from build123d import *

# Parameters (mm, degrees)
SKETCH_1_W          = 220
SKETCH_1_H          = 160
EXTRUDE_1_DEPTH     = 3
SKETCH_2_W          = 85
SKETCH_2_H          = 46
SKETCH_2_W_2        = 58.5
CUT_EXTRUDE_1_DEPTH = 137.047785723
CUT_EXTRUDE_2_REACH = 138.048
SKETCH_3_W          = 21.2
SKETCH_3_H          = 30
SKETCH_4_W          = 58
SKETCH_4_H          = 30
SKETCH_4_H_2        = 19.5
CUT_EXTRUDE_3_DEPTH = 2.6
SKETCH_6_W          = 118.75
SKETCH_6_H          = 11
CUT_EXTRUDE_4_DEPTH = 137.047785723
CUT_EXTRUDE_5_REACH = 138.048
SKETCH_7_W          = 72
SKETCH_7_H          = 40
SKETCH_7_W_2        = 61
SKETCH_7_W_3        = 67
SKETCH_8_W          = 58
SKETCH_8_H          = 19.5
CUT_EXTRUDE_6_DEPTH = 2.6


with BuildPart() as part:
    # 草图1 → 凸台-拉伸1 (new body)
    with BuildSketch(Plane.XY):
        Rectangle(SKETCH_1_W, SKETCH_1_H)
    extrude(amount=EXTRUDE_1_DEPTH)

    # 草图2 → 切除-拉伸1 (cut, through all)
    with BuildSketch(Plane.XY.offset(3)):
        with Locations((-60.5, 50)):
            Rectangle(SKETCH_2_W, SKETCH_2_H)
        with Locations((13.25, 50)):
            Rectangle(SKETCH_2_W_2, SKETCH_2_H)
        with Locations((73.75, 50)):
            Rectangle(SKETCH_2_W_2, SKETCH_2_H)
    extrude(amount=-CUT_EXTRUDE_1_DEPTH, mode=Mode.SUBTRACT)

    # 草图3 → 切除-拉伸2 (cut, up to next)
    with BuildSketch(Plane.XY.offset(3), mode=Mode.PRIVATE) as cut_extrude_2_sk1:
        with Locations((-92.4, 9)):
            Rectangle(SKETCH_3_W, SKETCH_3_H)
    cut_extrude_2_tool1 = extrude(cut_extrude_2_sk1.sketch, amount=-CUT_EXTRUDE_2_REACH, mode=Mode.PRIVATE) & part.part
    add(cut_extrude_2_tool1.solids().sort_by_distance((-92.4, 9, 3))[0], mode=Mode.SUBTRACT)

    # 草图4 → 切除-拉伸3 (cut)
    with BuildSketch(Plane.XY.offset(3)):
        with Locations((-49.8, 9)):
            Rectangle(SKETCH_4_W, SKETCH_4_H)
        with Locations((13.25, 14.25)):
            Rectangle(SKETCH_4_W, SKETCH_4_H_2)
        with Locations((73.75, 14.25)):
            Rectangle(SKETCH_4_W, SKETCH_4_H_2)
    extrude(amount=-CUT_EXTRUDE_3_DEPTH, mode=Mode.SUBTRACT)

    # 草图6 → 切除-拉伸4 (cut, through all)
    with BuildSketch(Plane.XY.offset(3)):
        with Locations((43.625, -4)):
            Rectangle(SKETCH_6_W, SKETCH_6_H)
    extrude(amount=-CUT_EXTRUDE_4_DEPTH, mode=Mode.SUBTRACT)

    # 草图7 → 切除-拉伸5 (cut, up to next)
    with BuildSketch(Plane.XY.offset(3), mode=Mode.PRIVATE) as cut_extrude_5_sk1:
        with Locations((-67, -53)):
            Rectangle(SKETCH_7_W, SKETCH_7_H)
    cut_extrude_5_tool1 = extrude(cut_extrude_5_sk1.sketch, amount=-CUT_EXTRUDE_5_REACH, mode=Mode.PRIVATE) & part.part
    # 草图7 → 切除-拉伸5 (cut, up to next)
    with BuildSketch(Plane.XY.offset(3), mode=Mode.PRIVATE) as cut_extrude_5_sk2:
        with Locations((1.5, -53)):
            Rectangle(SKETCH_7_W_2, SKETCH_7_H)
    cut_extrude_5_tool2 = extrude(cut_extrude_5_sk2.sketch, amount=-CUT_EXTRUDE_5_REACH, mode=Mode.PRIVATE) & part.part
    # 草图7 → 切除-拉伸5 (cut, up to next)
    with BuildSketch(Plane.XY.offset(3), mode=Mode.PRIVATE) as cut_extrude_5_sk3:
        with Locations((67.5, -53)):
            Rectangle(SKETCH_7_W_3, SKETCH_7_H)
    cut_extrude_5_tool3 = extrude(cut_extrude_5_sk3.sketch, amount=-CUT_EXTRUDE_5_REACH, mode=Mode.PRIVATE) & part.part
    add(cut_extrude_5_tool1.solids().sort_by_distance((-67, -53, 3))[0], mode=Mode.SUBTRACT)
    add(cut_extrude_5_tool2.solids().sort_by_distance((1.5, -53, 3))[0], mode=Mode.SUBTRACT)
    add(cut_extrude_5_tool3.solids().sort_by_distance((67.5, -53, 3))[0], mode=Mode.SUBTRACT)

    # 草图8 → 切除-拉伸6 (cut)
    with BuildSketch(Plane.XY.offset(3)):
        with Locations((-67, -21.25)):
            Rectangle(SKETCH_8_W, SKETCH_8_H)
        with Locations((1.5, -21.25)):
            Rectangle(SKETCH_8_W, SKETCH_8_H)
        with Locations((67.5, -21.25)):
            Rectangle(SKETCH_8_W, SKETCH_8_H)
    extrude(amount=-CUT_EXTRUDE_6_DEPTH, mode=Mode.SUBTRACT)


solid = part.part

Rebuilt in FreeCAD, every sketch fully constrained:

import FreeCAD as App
import Part
import Sketcher

V = App.Vector

doc = App.newDocument("Part")
body = doc.addObject("PartDesign::Body", "Body")

sketch1 = body.newObject("Sketcher::SketchObject", "Sketch")
sketch1.AttachmentSupport = (doc.getObject("XY_Plane"), [""])
sketch1.MapMode = "FlatFace"
sketch1.addGeometry(Part.LineSegment(V(-110, 80, 0), V(-110, -80, 0)), False)
sketch1.addGeometry(Part.LineSegment(V(-110, -80, 0), V(110, -80, 0)), False)
sketch1.addGeometry(Part.LineSegment(V(110, -80, 0), V(110, 80, 0)), False)
sketch1.addGeometry(Part.LineSegment(V(110, 80, 0), V(-110, 80, 0)), False)
sketch1.addConstraint(Sketcher.Constraint("Coincident", 0, 2, 1, 1))
sketch1.addConstraint(Sketcher.Constraint("Coincident", 1, 2, 2, 1))
sketch1.addConstraint(Sketcher.Constraint("Coincident", 2, 2, 3, 1))
sketch1.addConstraint(Sketcher.Constraint("Coincident", 3, 2, 0, 1))
sketch1.addConstraint(Sketcher.Constraint("Vertical", 0))
sketch1.addConstraint(Sketcher.Constraint("Horizontal", 1))
sketch1.addConstraint(Sketcher.Constraint("Vertical", 2))
sketch1.addConstraint(Sketcher.Constraint("Horizontal", 3))
sketch1.addConstraint(Sketcher.Constraint("Symmetric", 0, 2, 2, 2, -1, 1))
sketch1.addConstraint(Sketcher.Constraint("DistanceX", 1, 1, 1, 2, 220.0))
sketch1.addConstraint(Sketcher.Constraint("DistanceY", 0, 2, 0, 1, 160.0))
pad1 = body.newObject("PartDesign::Pad", "Pad")
pad1.Profile = sketch1
pad1.Length = 3

sketch2 = body.newObject("Sketcher::SketchObject", "Sketch001")
sketch2.AttachmentSupport = (doc.getObject("XY_Plane"), [""])
sketch2.MapMode = "FlatFace"
sketch2.AttachmentOffset = App.Placement(V(0, 0, 3), App.Rotation())
sketch2.addGeometry(Part.LineSegment(V(-103, 73, 0), V(-103, 27, 0)), False)
sketch2.addGeometry(Part.LineSegment(V(-103, 27, 0), V(-18, 27, 0)), False)
sketch2.addGeometry(Part.LineSegment(V(-18, 27, 0), V(-18, 73, 0)), False)
sketch2.addGeometry(Part.LineSegment(V(-18, 73, 0), V(-103, 73, 0)), False)
sketch2.addGeometry(Part.LineSegment(V(-16, 73, 0), V(-16, 27, 0)), False)
sketch2.addGeometry(Part.LineSegment(V(-16, 27, 0), V(42, 27, 0)), False)
sketch2.addGeometry(Part.LineSegment(V(42, 27, 0), V(42, 73, 0)), False)
sketch2.addGeometry(Part.LineSegment(V(42, 73, 0), V(-16, 73, 0)), False)
sketch2.addGeometry(Part.LineSegment(V(44, 73, 0), V(44, 27, 0)), False)
sketch2.addGeometry(Part.LineSegment(V(44, 27, 0), V(103, 27, 0)), False)
sketch2.addGeometry(Part.LineSegment(V(103, 27, 0), V(103, 73, 0)), False)
sketch2.addGeometry(Part.LineSegment(V(103, 73, 0), V(44, 73, 0)), False)
sketch2.addConstraint(Sketcher.Constraint("Coincident", 0, 2, 1, 1))
sketch2.addConstraint(Sketcher.Constraint("Coincident", 1, 2, 2, 1))
sketch2.addConstraint(Sketcher.Constraint("Coincident", 2, 2, 3, 1))
sketch2.addConstraint(Sketcher.Constraint("Coincident", 3, 2, 0, 1))
sketch2.addConstraint(Sketcher.Constraint("Coincident", 4, 2, 5, 1))
sketch2.addConstraint(Sketcher.Constraint("Coincident", 5, 2, 6, 1))
sketch2.addConstraint(Sketcher.Constraint("Coincident", 6, 2, 7, 1))
sketch2.addConstraint(Sketcher.Constraint("Coincident", 7, 2, 4, 1))
sketch2.addConstraint(Sketcher.Constraint("Coincident", 8, 2, 9, 1))
sketch2.addConstraint(Sketcher.Constraint("Coincident", 9, 2, 10, 1))
sketch2.addConstraint(Sketcher.Constraint("Coincident", 10, 2, 11, 1))
sketch2.addConstraint(Sketcher.Constraint("Coincident", 11, 2, 8, 1))
sketch2.addConstraint(Sketcher.Constraint("Vertical", 0))
sketch2.addConstraint(Sketcher.Constraint("Horizontal", 1))
sketch2.addConstraint(Sketcher.Constraint("Vertical", 2))
sketch2.addConstraint(Sketcher.Constraint("Horizontal", 3))
sketch2.addConstraint(Sketcher.Constraint("Vertical", 4))
sketch2.addConstraint(Sketcher.Constraint("Horizontal", 5))
sketch2.addConstraint(Sketcher.Constraint("Vertical", 6))
sketch2.addConstraint(Sketcher.Constraint("Horizontal", 7))
sketch2.addConstraint(Sketcher.Constraint("Vertical", 8))
sketch2.addConstraint(Sketcher.Constraint("Horizontal", 9))
sketch2.addConstraint(Sketcher.Constraint("Vertical", 10))
sketch2.addConstraint(Sketcher.Constraint("Horizontal", 11))
sketch2.addConstraint(Sketcher.Constraint("Symmetric", 0, 2, 9, 2, -2))
sketch2.addConstraint(Sketcher.Constraint("Horizontal", 1, 2, 4, 2))
sketch2.addConstraint(Sketcher.Constraint("Horizontal", 3, 2, 6, 2))
sketch2.addConstraint(Sketcher.Constraint("Horizontal", 7, 2, 10, 2))
sketch2.addConstraint(Sketcher.Constraint("Equal", 7, 9))
sketch2.addConstraint(Sketcher.Constraint("DistanceX", 1, 1, 1, 2, 85.0))
sketch2.addConstraint(Sketcher.Constraint("DistanceY", 0, 2, 0, 1, 46.0))
sketch2.addConstraint(Sketcher.Constraint("DistanceX", 5, 1, 5, 2, 58.5))
sketch2.addConstraint(Sketcher.Constraint("DistanceX", 0, 2, -1, 1, 103.0))
sketch2.addConstraint(Sketcher.Constraint("DistanceY", -1, 1, 0, 2, 27.0))
sketch2.addConstraint(Sketcher.Constraint("DistanceX", 4, 2, -1, 1, 16.0))
pocket1 = body.newObject("PartDesign::Pocket", "Pocket")
pocket1.Profile = sketch2
pocket1.Type = "ThroughAll"

sketch3 = body.newObject("Sketcher::SketchObject", "Sketch002")
sketch3.AttachmentSupport = (doc.getObject("XY_Plane"), [""])
sketch3.MapMode = "FlatFace"
sketch3.AttachmentOffset = App.Placement(V(0, 0, 3), App.Rotation())
sketch3.addGeometry(Part.LineSegment(V(-103, 24, 0), V(-103, -6, 0)), False)
sketch3.addGeometry(Part.LineSegment(V(-103, -6, 0), V(-82, -6, 0)), False)
sketch3.addGeometry(Part.LineSegment(V(-82, -6, 0), V(-82, 24, 0)), False)
sketch3.addGeometry(Part.LineSegment(V(-82, 24, 0), V(-103, 24, 0)), False)
sketch3.addConstraint(Sketcher.Constraint("Coincident", 0, 2, 1, 1))
sketch3.addConstraint(Sketcher.Constraint("Coincident", 1, 2, 2, 1))
sketch3.addConstraint(Sketcher.Constraint("Coincident", 2, 2, 3, 1))
sketch3.addConstraint(Sketcher.Constraint("Coincident", 3, 2, 0, 1))
sketch3.addConstraint(Sketcher.Constraint("Vertical", 0))
sketch3.addConstraint(Sketcher.Constraint("Horizontal", 1))
sketch3.addConstraint(Sketcher.Constraint("Vertical", 2))
sketch3.addConstraint(Sketcher.Constraint("Horizontal", 3))
sketch3.addConstraint(Sketcher.Constraint("DistanceY", 0, 2, 0, 1, 30.0))
sketch3.addConstraint(Sketcher.Constraint("DistanceX", 1, 1, 1, 2, 21.2))
sketch3.addConstraint(Sketcher.Constraint("DistanceX", 0, 2, -1, 1, 103.0))
sketch3.addConstraint(Sketcher.Constraint("DistanceY", 0, 2, -1, 1, 6.0))
pocket2 = body.newObject("PartDesign::Pocket", "Pocket001")
pocket2.Profile = sketch3
pocket2.Type = "UpToFirst"

sketch4 = body.newObject("Sketcher::SketchObject", "Sketch003")
sketch4.AttachmentSupport = (doc.getObject("XY_Plane"), [""])
sketch4.MapMode = "FlatFace"
sketch4.AttachmentOffset = App.Placement(V(0, 0, 3), App.Rotation())
sketch4.addGeometry(Part.LineSegment(V(-79, 24, 0), V(-79, -6, 0)), False)
sketch4.addGeometry(Part.LineSegment(V(-79, -6, 0), V(-21, -6, 0)), False)
sketch4.addGeometry(Part.LineSegment(V(-21, -6, 0), V(-21, 24, 0)), False)
sketch4.addGeometry(Part.LineSegment(V(-21, 24, 0), V(-79, 24, 0)), False)
sketch4.addGeometry(Part.LineSegment(V(-16, 24, 0), V(-16, 4, 0)), False)
sketch4.addGeometry(Part.LineSegment(V(-16, 4, 0), V(42, 4, 0)), False)
sketch4.addGeometry(Part.LineSegment(V(42, 4, 0), V(42, 24, 0)), False)
sketch4.addGeometry(Part.LineSegment(V(42, 24, 0), V(-16, 24, 0)), False)
sketch4.addGeometry(Part.LineSegment(V(45, 24, 0), V(45, 4, 0)), False)
sketch4.addGeometry(Part.LineSegment(V(45, 4, 0), V(103, 4, 0)), False)
sketch4.addGeometry(Part.LineSegment(V(103, 4, 0), V(103, 24, 0)), False)
sketch4.addGeometry(Part.LineSegment(V(103, 24, 0), V(45, 24, 0)), False)
sketch4.addConstraint(Sketcher.Constraint("Coincident", 0, 2, 1, 1))
sketch4.addConstraint(Sketcher.Constraint("Coincident", 1, 2, 2, 1))
sketch4.addConstraint(Sketcher.Constraint("Coincident", 2, 2, 3, 1))
sketch4.addConstraint(Sketcher.Constraint("Coincident", 3, 2, 0, 1))
sketch4.addConstraint(Sketcher.Constraint("Coincident", 4, 2, 5, 1))
sketch4.addConstraint(Sketcher.Constraint("Coincident", 5, 2, 6, 1))
sketch4.addConstraint(Sketcher.Constraint("Coincident", 6, 2, 7, 1))
sketch4.addConstraint(Sketcher.Constraint("Coincident", 7, 2, 4, 1))
sketch4.addConstraint(Sketcher.Constraint("Coincident", 8, 2, 9, 1))
sketch4.addConstraint(Sketcher.Constraint("Coincident", 9, 2, 10, 1))
sketch4.addConstraint(Sketcher.Constraint("Coincident", 10, 2, 11, 1))
sketch4.addConstraint(Sketcher.Constraint("Coincident", 11, 2, 8, 1))
sketch4.addConstraint(Sketcher.Constraint("Vertical", 0))
sketch4.addConstraint(Sketcher.Constraint("Horizontal", 1))
sketch4.addConstraint(Sketcher.Constraint("Vertical", 2))
sketch4.addConstraint(Sketcher.Constraint("Horizontal", 3))
sketch4.addConstraint(Sketcher.Constraint("Vertical", 4))
sketch4.addConstraint(Sketcher.Constraint("Horizontal", 5))
sketch4.addConstraint(Sketcher.Constraint("Vertical", 6))
sketch4.addConstraint(Sketcher.Constraint("Horizontal", 7))
sketch4.addConstraint(Sketcher.Constraint("Vertical", 8))
sketch4.addConstraint(Sketcher.Constraint("Horizontal", 9))
sketch4.addConstraint(Sketcher.Constraint("Vertical", 10))
sketch4.addConstraint(Sketcher.Constraint("Horizontal", 11))
sketch4.addConstraint(Sketcher.Constraint("Horizontal", 3, 2, 6, 2))
sketch4.addConstraint(Sketcher.Constraint("Horizontal", 5, 2, 8, 2))
sketch4.addConstraint(Sketcher.Constraint("Horizontal", 7, 2, 10, 2))
sketch4.addConstraint(Sketcher.Constraint("Equal", 3, 5))
sketch4.addConstraint(Sketcher.Constraint("Equal", 7, 9))
sketch4.addConstraint(Sketcher.Constraint("DistanceX", 1, 1, 1, 2, 58.0))
sketch4.addConstraint(Sketcher.Constraint("DistanceY", 0, 2, 0, 1, 30.0))
sketch4.addConstraint(Sketcher.Constraint("DistanceY", 4, 2, 4, 1, 19.5))
sketch4.addConstraint(Sketcher.Constraint("DistanceY", 0, 2, -1, 1, 6.0))
sketch4.addConstraint(Sketcher.Constraint("DistanceX", 0, 2, -1, 1, 78.8))
sketch4.addConstraint(Sketcher.Constraint("DistanceX", 5, 2, 8, 2, 2.5))
sketch4.addConstraint(Sketcher.Constraint("DistanceX", 4, 2, -1, 1, 15.75))
pocket3 = body.newObject("PartDesign::Pocket", "Pocket002")
pocket3.Profile = sketch4
pocket3.Length = 2.6

sketch5 = body.newObject("Sketcher::SketchObject", "Sketch004")
sketch5.AttachmentSupport = (doc.getObject("XY_Plane"), [""])
sketch5.MapMode = "FlatFace"
sketch5.AttachmentOffset = App.Placement(V(0, 0, 3), App.Rotation())
sketch5.addGeometry(Part.LineSegment(V(-16, 2, 0), V(-16, -10, 0)), False)
sketch5.addGeometry(Part.LineSegment(V(-16, -10, 0), V(103, -10, 0)), False)
sketch5.addGeometry(Part.LineSegment(V(103, -10, 0), V(103, 2, 0)), False)
sketch5.addGeometry(Part.LineSegment(V(103, 2, 0), V(-16, 2, 0)), False)
sketch5.addConstraint(Sketcher.Constraint("Coincident", 0, 2, 1, 1))
sketch5.addConstraint(Sketcher.Constraint("Coincident", 1, 2, 2, 1))
sketch5.addConstraint(Sketcher.Constraint("Coincident", 2, 2, 3, 1))
sketch5.addConstraint(Sketcher.Constraint("Coincident", 3, 2, 0, 1))
sketch5.addConstraint(Sketcher.Constraint("Vertical", 0))
sketch5.addConstraint(Sketcher.Constraint("Horizontal", 1))
sketch5.addConstraint(Sketcher.Constraint("Vertical", 2))
sketch5.addConstraint(Sketcher.Constraint("Horizontal", 3))
sketch5.addConstraint(Sketcher.Constraint("DistanceY", 0, 2, 0, 1, 11.0))
sketch5.addConstraint(Sketcher.Constraint("DistanceX", -1, 1, 1, 2, 103.0))
sketch5.addConstraint(Sketcher.Constraint("DistanceX", 1, 1, 1, 2, 118.75))
sketch5.addConstraint(Sketcher.Constraint("DistanceY", 0, 2, -1, 1, 9.5))
pocket4 = body.newObject("PartDesign::Pocket", "Pocket003")
pocket4.Profile = sketch5
pocket4.Type = "ThroughAll"

sketch6 = body.newObject("Sketcher::SketchObject", "Sketch005")
sketch6.AttachmentSupport = (doc.getObject("XY_Plane"), [""])
sketch6.MapMode = "FlatFace"
sketch6.AttachmentOffset = App.Placement(V(0, 0, 3), App.Rotation())
sketch6.addGeometry(Part.LineSegment(V(-103, -33, 0), V(-103, -73, 0)), False)
sketch6.addGeometry(Part.LineSegment(V(-103, -73, 0), V(-31, -73, 0)), False)
sketch6.addGeometry(Part.LineSegment(V(-31, -73, 0), V(-31, -33, 0)), False)
sketch6.addGeometry(Part.LineSegment(V(-31, -33, 0), V(-103, -33, 0)), False)
sketch6.addConstraint(Sketcher.Constraint("Coincident", 0, 2, 1, 1))
sketch6.addConstraint(Sketcher.Constraint("Coincident", 1, 2, 2, 1))
sketch6.addConstraint(Sketcher.Constraint("Coincident", 2, 2, 3, 1))
sketch6.addConstraint(Sketcher.Constraint("Coincident", 3, 2, 0, 1))
sketch6.addConstraint(Sketcher.Constraint("Vertical", 0))
sketch6.addConstraint(Sketcher.Constraint("Horizontal", 1))
sketch6.addConstraint(Sketcher.Constraint("Vertical", 2))
sketch6.addConstraint(Sketcher.Constraint("Horizontal", 3))
sketch6.addConstraint(Sketcher.Constraint("DistanceX", 1, 1, 1, 2, 72.0))
sketch6.addConstraint(Sketcher.Constraint("DistanceY", 0, 2, 0, 1, 40.0))
sketch6.addConstraint(Sketcher.Constraint("DistanceX", 0, 2, -1, 1, 103.0))
sketch6.addConstraint(Sketcher.Constraint("DistanceY", 0, 2, -1, 1, 73.0))
pocket5 = body.newObject("PartDesign::Pocket", "Pocket004")
pocket5.Profile = sketch6
pocket5.Type = "UpToFirst"

sketch7 = body.newObject("Sketcher::SketchObject", "Sketch006")
sketch7.AttachmentSupport = (doc.getObject("XY_Plane"), [""])
sketch7.MapMode = "FlatFace"
sketch7.AttachmentOffset = App.Placement(V(0, 0, 3), App.Rotation())
sketch7.addGeometry(Part.LineSegment(V(-29, -33, 0), V(-29, -73, 0)), False)
sketch7.addGeometry(Part.LineSegment(V(-29, -73, 0), V(32, -73, 0)), False)
sketch7.addGeometry(Part.LineSegment(V(32, -73, 0), V(32, -33, 0)), False)
sketch7.addGeometry(Part.LineSegment(V(32, -33, 0), V(-29, -33, 0)), False)
sketch7.addConstraint(Sketcher.Constraint("Coincident", 0, 2, 1, 1))
sketch7.addConstraint(Sketcher.Constraint("Coincident", 1, 2, 2, 1))
sketch7.addConstraint(Sketcher.Constraint("Coincident", 2, 2, 3, 1))
sketch7.addConstraint(Sketcher.Constraint("Coincident", 3, 2, 0, 1))
sketch7.addConstraint(Sketcher.Constraint("Vertical", 0))
sketch7.addConstraint(Sketcher.Constraint("Horizontal", 1))
sketch7.addConstraint(Sketcher.Constraint("Vertical", 2))
sketch7.addConstraint(Sketcher.Constraint("Horizontal", 3))
sketch7.addConstraint(Sketcher.Constraint("DistanceX", 1, 1, 1, 2, 61.0))
sketch7.addConstraint(Sketcher.Constraint("DistanceY", 0, 2, 0, 1, 40.0))
sketch7.addConstraint(Sketcher.Constraint("DistanceX", 0, 2, -1, 1, 29.0))
sketch7.addConstraint(Sketcher.Constraint("DistanceY", 0, 2, -1, 1, 73.0))
pocket6 = body.newObject("PartDesign::Pocket", "Pocket005")
pocket6.Profile = sketch7
pocket6.Type = "UpToFirst"

sketch8 = body.newObject("Sketcher::SketchObject", "Sketch007")
sketch8.AttachmentSupport = (doc.getObject("XY_Plane"), [""])
sketch8.MapMode = "FlatFace"
sketch8.AttachmentOffset = App.Placement(V(0, 0, 3), App.Rotation())
sketch8.addGeometry(Part.LineSegment(V(34, -33, 0), V(34, -73, 0)), False)
sketch8.addGeometry(Part.LineSegment(V(34, -73, 0), V(101, -73, 0)), False)
sketch8.addGeometry(Part.LineSegment(V(101, -73, 0), V(101, -33, 0)), False)
sketch8.addGeometry(Part.LineSegment(V(101, -33, 0), V(34, -33, 0)), False)
sketch8.addConstraint(Sketcher.Constraint("Coincident", 0, 2, 1, 1))
sketch8.addConstraint(Sketcher.Constraint("Coincident", 1, 2, 2, 1))
sketch8.addConstraint(Sketcher.Constraint("Coincident", 2, 2, 3, 1))
sketch8.addConstraint(Sketcher.Constraint("Coincident", 3, 2, 0, 1))
sketch8.addConstraint(Sketcher.Constraint("Vertical", 0))
sketch8.addConstraint(Sketcher.Constraint("Horizontal", 1))
sketch8.addConstraint(Sketcher.Constraint("Vertical", 2))
sketch8.addConstraint(Sketcher.Constraint("Horizontal", 3))
sketch8.addConstraint(Sketcher.Constraint("DistanceX", 1, 1, 1, 2, 67.0))
sketch8.addConstraint(Sketcher.Constraint("DistanceY", 0, 2, 0, 1, 40.0))
sketch8.addConstraint(Sketcher.Constraint("DistanceX", -1, 1, 0, 2, 34.0))
sketch8.addConstraint(Sketcher.Constraint("DistanceY", 0, 2, -1, 1, 73.0))
pocket7 = body.newObject("PartDesign::Pocket", "Pocket006")
pocket7.Profile = sketch8
pocket7.Type = "UpToFirst"

sketch9 = body.newObject("Sketcher::SketchObject", "Sketch008")
sketch9.AttachmentSupport = (doc.getObject("XY_Plane"), [""])
sketch9.MapMode = "FlatFace"
sketch9.AttachmentOffset = App.Placement(V(0, 0, 3), App.Rotation())
sketch9.addGeometry(Part.LineSegment(V(-96, -12, 0), V(-96, -31, 0)), False)
sketch9.addGeometry(Part.LineSegment(V(-96, -31, 0), V(-38, -31, 0)), False)
sketch9.addGeometry(Part.LineSegment(V(-38, -31, 0), V(-38, -12, 0)), False)
sketch9.addGeometry(Part.LineSegment(V(-38, -12, 0), V(-96, -12, 0)), False)
sketch9.addGeometry(Part.LineSegment(V(-28, -12, 0), V(-28, -31, 0)), False)
sketch9.addGeometry(Part.LineSegment(V(-28, -31, 0), V(30, -31, 0)), False)
sketch9.addGeometry(Part.LineSegment(V(30, -31, 0), V(30, -12, 0)), False)
sketch9.addGeometry(Part.LineSegment(V(30, -12, 0), V(-28, -12, 0)), False)
sketch9.addGeometry(Part.LineSegment(V(38, -12, 0), V(38, -31, 0)), False)
sketch9.addGeometry(Part.LineSegment(V(38, -31, 0), V(96, -31, 0)), False)
sketch9.addGeometry(Part.LineSegment(V(96, -31, 0), V(96, -12, 0)), False)
sketch9.addGeometry(Part.LineSegment(V(96, -12, 0), V(38, -12, 0)), False)
sketch9.addConstraint(Sketcher.Constraint("Coincident", 0, 2, 1, 1))
sketch9.addConstraint(Sketcher.Constraint("Coincident", 1, 2, 2, 1))
sketch9.addConstraint(Sketcher.Constraint("Coincident", 2, 2, 3, 1))
sketch9.addConstraint(Sketcher.Constraint("Coincident", 3, 2, 0, 1))
sketch9.addConstraint(Sketcher.Constraint("Coincident", 4, 2, 5, 1))
sketch9.addConstraint(Sketcher.Constraint("Coincident", 5, 2, 6, 1))
sketch9.addConstraint(Sketcher.Constraint("Coincident", 6, 2, 7, 1))
sketch9.addConstraint(Sketcher.Constraint("Coincident", 7, 2, 4, 1))
sketch9.addConstraint(Sketcher.Constraint("Coincident", 8, 2, 9, 1))
sketch9.addConstraint(Sketcher.Constraint("Coincident", 9, 2, 10, 1))
sketch9.addConstraint(Sketcher.Constraint("Coincident", 10, 2, 11, 1))
sketch9.addConstraint(Sketcher.Constraint("Coincident", 11, 2, 8, 1))
sketch9.addConstraint(Sketcher.Constraint("Vertical", 0))
sketch9.addConstraint(Sketcher.Constraint("Horizontal", 1))
sketch9.addConstraint(Sketcher.Constraint("Vertical", 2))
sketch9.addConstraint(Sketcher.Constraint("Horizontal", 3))
sketch9.addConstraint(Sketcher.Constraint("Vertical", 4))
sketch9.addConstraint(Sketcher.Constraint("Horizontal", 5))
sketch9.addConstraint(Sketcher.Constraint("Vertical", 6))
sketch9.addConstraint(Sketcher.Constraint("Horizontal", 7))
sketch9.addConstraint(Sketcher.Constraint("Vertical", 8))
sketch9.addConstraint(Sketcher.Constraint("Horizontal", 9))
sketch9.addConstraint(Sketcher.Constraint("Vertical", 10))
sketch9.addConstraint(Sketcher.Constraint("Horizontal", 11))
sketch9.addConstraint(Sketcher.Constraint("Horizontal", 1, 2, 4, 2))
sketch9.addConstraint(Sketcher.Constraint("Horizontal", 3, 2, 6, 2))
sketch9.addConstraint(Sketcher.Constraint("Horizontal", 5, 2, 8, 2))
sketch9.addConstraint(Sketcher.Constraint("Horizontal", 7, 2, 10, 2))
sketch9.addConstraint(Sketcher.Constraint("Equal", 3, 5))
sketch9.addConstraint(Sketcher.Constraint("Equal", 7, 9))
sketch9.addConstraint(Sketcher.Constraint("DistanceX", 1, 1, 1, 2, 58.0))
sketch9.addConstraint(Sketcher.Constraint("DistanceY", 0, 2, 0, 1, 19.5))
sketch9.addConstraint(Sketcher.Constraint("DistanceX", 0, 2, -1, 1, 96.0))
sketch9.addConstraint(Sketcher.Constraint("DistanceY", 0, 2, -1, 1, 31.0))
sketch9.addConstraint(Sketcher.Constraint("DistanceX", 5, 2, 8, 2, 8.0))
sketch9.addConstraint(Sketcher.Constraint("DistanceX", 4, 2, -1, 1, 27.5))
pocket8 = body.newObject("PartDesign::Pocket", "Pocket007")
pocket8.Profile = sketch9
pocket8.Length = 2.6

doc.recompute()
